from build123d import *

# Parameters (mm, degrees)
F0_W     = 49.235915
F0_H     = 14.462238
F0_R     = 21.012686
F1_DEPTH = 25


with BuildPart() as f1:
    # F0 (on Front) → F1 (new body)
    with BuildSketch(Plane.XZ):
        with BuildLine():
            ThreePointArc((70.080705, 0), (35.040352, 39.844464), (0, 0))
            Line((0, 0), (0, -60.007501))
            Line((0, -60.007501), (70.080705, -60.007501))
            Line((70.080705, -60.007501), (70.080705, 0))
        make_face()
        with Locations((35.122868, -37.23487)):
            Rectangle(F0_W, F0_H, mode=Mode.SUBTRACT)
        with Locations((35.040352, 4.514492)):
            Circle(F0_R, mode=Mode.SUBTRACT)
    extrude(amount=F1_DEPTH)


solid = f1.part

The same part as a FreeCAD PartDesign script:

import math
import FreeCAD as App
import Part
import Sketcher
from FreeCAD import Vector


def add_polygon(sketch, points):
    """Adds a closed chain of lines whose ends are joined by coincident constraints."""
    first, n = sketch.GeometryCount, len(points)
    for a, b in zip(points, points[1:] + points[:1]):
        sketch.addGeometry(Part.LineSegment(App.Vector(*a, 0), App.Vector(*b, 0)), False)
    for i in range(n):
        sketch.addConstraint(Sketcher.Constraint("Coincident", first + i, 2, first + (i + 1) % n, 1))

doc = App.newDocument("Part")
body = doc.addObject("PartDesign::Body", "Body")

sketch1 = body.newObject("Sketcher::SketchObject", "Sketch")
sketch1.AttachmentSupport = (doc.getObject("XZ_Plane"), [""])
sketch1.MapMode = "FlatFace"
sketch1.addGeometry(Part.ArcOfCircle(Part.Circle(Vector(35, 5, 0), Vector(0, 0, 1), 35), math.radians(-7), math.radians(187)), False)
sketch1.addGeometry(Part.LineSegment(Vector(0, 0, 0), Vector(0, -60, 0)), False)
sketch1.addGeometry(Part.LineSegment(Vector(0, -60, 0), Vector(70, -60, 0)), False)
sketch1.addGeometry(Part.LineSegment(Vector(70, -60, 0), Vector(70, 0, 0)), False)
add_polygon(sketch1, [(60, -44), (11, -44), (11, -30), (60, -30)])
sketch1.addGeometry(Part.Circle(Vector(35, 5, 0), Vector(0, 0, 1), 21), False)
sketch1.addConstraint(Sketcher.Constraint("Coincident", 0, 2, 1, 1))
sketch1.addConstraint(Sketcher.Constraint("Coincident", 1, 2, 2, 1))
sketch1.addConstraint(Sketcher.Constraint("Coincident", 2, 2, 3, 1))
sketch1.addConstraint(Sketcher.Constraint("Coincident", 3, 2, 0, 1))
sketch1.addConstraint(Sketcher.Constraint("Vertical", 1))
sketch1.addConstraint(Sketcher.Constraint("Horizontal", 2))
sketch1.addConstraint(Sketcher.Constraint("Vertical", 3))
sketch1.addConstraint(Sketcher.Constraint("Horizontal", 4))
sketch1.addConstraint(Sketcher.Constraint("Vertical", 5))
sketch1.addConstraint(Sketcher.Constraint("Horizontal", 6))
sketch1.addConstraint(Sketcher.Constraint("Vertical", 7))
sketch1.addConstraint(Sketcher.Constraint("Coincident", 0, 2, -1, 1))
sketch1.addConstraint(Sketcher.Constraint("Coincident", 8, 3, 0, 3))
sketch1.addConstraint(Sketcher.Constraint("PointOnObject", 3, 2, -1))
sketch1.addConstraint(Sketcher.Constraint("Diameter", 8, 42.025372))
sketch1.addConstraint(Sketcher.Constraint("DistanceY", 1, 2, 1, 1, 60.007501))
sketch1.addConstraint(Sketcher.Constraint("Radius", 0, 35.329972))
sketch1.addConstraint(Sketcher.Constraint("DistanceX", 2, 1, 2, 2, 70.080705))
sketch1.addConstraint(Sketcher.Constraint("DistanceX", 4, 2, 4, 1, 49.235915))
sketch1.addConstraint(Sketcher.Constraint("DistanceY", 5, 1, 5, 2, 14.462238))
sketch1.addConstraint(Sketcher.Constraint("DistanceX", -1, 1, 4, 2, 10.50491))
sketch1.addConstraint(Sketcher.Constraint("DistanceY", 4, 2, -1, 1, 44.465989))
pad1 = body.newObject("PartDesign::Pad", "Pad")
pad1.Profile = sketch1
pad1.Length = 25

doc.recompute()
